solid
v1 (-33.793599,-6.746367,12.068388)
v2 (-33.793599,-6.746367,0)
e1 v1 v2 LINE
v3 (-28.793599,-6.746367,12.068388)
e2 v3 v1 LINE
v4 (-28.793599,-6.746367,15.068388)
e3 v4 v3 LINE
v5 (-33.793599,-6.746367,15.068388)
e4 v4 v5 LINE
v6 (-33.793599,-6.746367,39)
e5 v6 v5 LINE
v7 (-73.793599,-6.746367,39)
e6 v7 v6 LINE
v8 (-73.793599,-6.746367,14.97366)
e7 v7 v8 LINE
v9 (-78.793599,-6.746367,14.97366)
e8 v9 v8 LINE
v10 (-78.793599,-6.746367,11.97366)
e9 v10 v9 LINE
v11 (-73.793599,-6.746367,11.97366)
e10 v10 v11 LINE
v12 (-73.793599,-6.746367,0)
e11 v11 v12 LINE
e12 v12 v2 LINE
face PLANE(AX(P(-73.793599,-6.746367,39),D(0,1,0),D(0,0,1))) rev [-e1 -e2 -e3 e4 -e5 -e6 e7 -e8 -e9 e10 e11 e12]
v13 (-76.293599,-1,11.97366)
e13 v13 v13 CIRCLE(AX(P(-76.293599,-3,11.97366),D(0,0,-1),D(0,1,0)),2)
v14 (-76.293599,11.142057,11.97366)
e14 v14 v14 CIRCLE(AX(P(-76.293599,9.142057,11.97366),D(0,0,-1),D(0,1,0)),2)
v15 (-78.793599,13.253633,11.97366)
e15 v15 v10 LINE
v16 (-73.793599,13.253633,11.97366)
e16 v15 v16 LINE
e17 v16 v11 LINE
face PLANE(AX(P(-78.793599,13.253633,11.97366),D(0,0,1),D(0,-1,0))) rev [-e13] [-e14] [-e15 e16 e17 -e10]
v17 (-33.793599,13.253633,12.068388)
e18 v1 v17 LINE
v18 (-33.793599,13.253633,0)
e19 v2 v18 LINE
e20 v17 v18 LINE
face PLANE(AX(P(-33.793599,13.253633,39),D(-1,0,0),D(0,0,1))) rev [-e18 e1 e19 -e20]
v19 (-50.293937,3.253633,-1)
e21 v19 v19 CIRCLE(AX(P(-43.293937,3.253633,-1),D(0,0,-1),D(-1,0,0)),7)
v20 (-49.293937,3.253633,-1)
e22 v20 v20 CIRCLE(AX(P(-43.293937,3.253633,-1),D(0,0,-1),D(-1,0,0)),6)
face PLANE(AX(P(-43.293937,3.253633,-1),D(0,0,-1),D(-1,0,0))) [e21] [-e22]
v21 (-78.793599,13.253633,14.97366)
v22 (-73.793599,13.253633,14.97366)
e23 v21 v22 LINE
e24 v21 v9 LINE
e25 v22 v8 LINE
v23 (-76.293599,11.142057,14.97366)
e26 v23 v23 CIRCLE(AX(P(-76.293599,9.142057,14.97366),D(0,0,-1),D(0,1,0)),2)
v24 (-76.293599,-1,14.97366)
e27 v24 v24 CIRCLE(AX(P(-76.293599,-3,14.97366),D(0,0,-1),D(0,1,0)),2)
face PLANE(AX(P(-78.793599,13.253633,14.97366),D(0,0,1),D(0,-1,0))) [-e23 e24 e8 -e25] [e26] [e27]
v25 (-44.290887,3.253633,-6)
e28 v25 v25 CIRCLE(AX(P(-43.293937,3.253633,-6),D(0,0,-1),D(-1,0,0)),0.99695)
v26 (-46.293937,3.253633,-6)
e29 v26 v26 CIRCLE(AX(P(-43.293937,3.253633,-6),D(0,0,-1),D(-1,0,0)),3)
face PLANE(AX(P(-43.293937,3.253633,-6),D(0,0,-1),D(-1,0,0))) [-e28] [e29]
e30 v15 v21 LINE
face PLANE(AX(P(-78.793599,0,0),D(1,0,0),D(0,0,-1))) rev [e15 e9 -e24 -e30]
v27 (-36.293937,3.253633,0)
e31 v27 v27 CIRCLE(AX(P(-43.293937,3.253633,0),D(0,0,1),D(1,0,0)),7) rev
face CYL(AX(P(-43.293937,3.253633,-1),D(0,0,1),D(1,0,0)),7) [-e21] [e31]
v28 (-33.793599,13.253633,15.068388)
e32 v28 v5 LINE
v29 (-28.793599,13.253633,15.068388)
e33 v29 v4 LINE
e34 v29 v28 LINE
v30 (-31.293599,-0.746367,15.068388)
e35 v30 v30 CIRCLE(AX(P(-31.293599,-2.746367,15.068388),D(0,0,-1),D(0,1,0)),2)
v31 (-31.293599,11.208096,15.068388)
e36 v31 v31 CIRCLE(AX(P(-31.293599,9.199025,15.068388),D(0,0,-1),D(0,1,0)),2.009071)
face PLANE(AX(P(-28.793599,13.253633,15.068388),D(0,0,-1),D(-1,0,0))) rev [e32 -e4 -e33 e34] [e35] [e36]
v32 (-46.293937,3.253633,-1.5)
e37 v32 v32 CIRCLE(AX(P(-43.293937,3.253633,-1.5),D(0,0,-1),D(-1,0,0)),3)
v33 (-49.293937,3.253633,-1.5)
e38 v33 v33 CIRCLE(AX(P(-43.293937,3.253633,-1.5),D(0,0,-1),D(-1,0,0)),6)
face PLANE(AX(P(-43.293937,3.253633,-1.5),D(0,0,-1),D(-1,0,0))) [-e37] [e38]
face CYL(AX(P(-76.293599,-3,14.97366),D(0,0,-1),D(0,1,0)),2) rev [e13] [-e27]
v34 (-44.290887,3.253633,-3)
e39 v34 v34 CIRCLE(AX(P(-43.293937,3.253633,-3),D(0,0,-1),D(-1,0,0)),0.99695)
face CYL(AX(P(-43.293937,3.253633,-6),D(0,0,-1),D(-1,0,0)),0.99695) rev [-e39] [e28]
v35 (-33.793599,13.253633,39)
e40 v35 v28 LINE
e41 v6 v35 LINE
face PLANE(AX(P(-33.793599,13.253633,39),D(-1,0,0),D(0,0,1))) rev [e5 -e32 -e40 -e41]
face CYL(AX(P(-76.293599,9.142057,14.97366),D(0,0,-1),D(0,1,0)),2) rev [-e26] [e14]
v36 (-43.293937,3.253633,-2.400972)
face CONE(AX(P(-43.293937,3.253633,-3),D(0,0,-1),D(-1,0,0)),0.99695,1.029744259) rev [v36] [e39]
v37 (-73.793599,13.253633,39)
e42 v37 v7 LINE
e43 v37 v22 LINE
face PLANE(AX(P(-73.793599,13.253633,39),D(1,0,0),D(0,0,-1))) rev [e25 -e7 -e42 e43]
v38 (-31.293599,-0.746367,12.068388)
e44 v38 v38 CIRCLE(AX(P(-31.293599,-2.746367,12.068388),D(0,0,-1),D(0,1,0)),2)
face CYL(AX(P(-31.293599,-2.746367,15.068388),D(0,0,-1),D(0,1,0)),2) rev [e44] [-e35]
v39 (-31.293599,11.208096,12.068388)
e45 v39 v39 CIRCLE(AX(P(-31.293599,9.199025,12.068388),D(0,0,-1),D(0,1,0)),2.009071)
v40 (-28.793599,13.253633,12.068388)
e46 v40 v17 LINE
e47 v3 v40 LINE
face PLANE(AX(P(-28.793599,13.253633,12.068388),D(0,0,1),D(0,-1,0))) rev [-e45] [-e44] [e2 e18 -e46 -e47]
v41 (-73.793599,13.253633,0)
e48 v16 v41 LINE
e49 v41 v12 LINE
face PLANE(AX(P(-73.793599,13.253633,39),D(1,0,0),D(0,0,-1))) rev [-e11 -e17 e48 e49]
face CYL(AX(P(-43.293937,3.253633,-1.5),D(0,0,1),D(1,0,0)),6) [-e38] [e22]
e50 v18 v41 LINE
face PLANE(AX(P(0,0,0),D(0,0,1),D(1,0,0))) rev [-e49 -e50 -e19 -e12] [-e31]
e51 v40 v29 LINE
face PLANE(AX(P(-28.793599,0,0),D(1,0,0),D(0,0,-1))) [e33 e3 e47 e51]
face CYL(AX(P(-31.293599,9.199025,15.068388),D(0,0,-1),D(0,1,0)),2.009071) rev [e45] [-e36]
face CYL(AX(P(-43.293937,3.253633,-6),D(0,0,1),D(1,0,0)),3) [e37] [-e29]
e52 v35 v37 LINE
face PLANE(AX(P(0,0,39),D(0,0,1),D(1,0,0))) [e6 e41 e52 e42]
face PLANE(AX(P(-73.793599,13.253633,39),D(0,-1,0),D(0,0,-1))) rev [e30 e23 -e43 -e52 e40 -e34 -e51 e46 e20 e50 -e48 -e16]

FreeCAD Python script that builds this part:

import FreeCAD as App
import Part
import Sketcher

doc = App.newDocument("Part")
body = doc.addObject("PartDesign::Body", "Body")

# Sketch on XY plane
sketch1 = body.newObject("Sketcher::SketchObject", "Sketch")
sketch1.AttachmentSupport = (doc.getObject("XY_Plane"), [""])
sketch1.MapMode = "FlatFace"
sketch1.addGeometry([
    Part.LineSegment(App.Vector(-74, 13, 0), App.Vector(-74, -7, 0)),
    Part.LineSegment(App.Vector(-74, -7, 0), App.Vector(-34, -7, 0)),
    Part.LineSegment(App.Vector(-34, -7, 0), App.Vector(-34, 13, 0)),
    Part.LineSegment(App.Vector(-34, 13, 0), App.Vector(-74, 13, 0)),
], False)
sketch1.addConstraint([
    Sketcher.Constraint("Coincident", 0, 2, 1, 1),
    Sketcher.Constraint("Coincident", 1, 2, 2, 1),
    Sketcher.Constraint("Coincident", 2, 2, 3, 1),
    Sketcher.Constraint("Coincident", 3, 2, 0, 1),
    Sketcher.Constraint("Vertical", 0),
    Sketcher.Constraint("Horizontal", 1),
    Sketcher.Constraint("Vertical", 2),
    Sketcher.Constraint("Horizontal", 3),
    Sketcher.Constraint("DistanceX", 1, 1, 1, 2, 40.0),
    Sketcher.Constraint("DistanceY", 0, 2, 0, 1, 20.0),
    Sketcher.Constraint("DistanceX", 0, 2, -1, 1, 73.793599),
    Sketcher.Constraint("DistanceY", 0, 2, -1, 1, 6.746367),
])
pad1 = body.newObject("PartDesign::Pad", "Pad")
pad1.Profile = sketch1
pad1.Length = 39

# Sketch on YZ plane
sketch2 = body.newObject("Sketcher::SketchObject", "Sketch001")
sketch2.AttachmentSupport = (doc.getObject("YZ_Plane"), [""])
sketch2.MapMode = "FlatFace"
sketch2.AttachmentOffset = App.Placement(App.Vector(0, 0, -33.793599), App.Rotation())
sketch2.addGeometry([
    Part.LineSegment(App.Vector(13.3, 15.1, 0), App.Vector(-6.7, 15.1, 0)),
    Part.LineSegment(App.Vector(-6.7, 15.1, 0), App.Vector(-6.7, 12.1, 0)),
    Part.LineSegment(App.Vector(-6.7, 12.1, 0), App.Vector(13.3, 12.1, 0)),
    Part.LineSegment(App.Vector(13.3, 12.1, 0), App.Vector(13.3, 15.1, 0)),
], False)
sketch2.addConstraint([
    Sketcher.Constraint("Coincident", 0, 2, 1, 1),
    Sketcher.Constraint("Coincident", 1, 2, 2, 1),
    Sketcher.Constraint("Coincident", 2, 2, 3, 1),
    Sketcher.Constraint("Coincident", 3, 2, 0, 1),
    Sketcher.Constraint("Horizontal", 0),
    Sketcher.Constraint("Vertical", 1),
    Sketcher.Constraint("Horizontal", 2),
    Sketcher.Constraint("Vertical", 3),
    Sketcher.Constraint("DistanceX", 0, 2, 0, 1, 20.0),
    Sketcher.Constraint("DistanceY", 1, 2, 1, 1, 3.0),
    Sketcher.Constraint("DistanceX", 0, 2, -1, 1, 6.746367),
    Sketcher.Constraint("DistanceY", -1, 1, 0, 2, 15.068388),
])
pad2 = body.newObject("PartDesign::Pad", "Pad001")
pad2.Profile = sketch2
pad2.Length = 5

# Sketch on YZ plane
sketch3 = body.newObject("Sketcher::SketchObject", "Sketch002")
sketch3.AttachmentSupport = (doc.getObject("YZ_Plane"), [""])
sketch3.MapMode = "FlatFace"
sketch3.AttachmentOffset = App.Placement(App.Vector(0, 0, -73.793599), App.Rotation())
sketch3.addGeometry([
    Part.LineSegment(App.Vector(13.3, 12, 0), App.Vector(-6.7, 12, 0)),
    Part.LineSegment(App.Vector(-6.7, 12, 0), App.Vector(-6.7, 15, 0)),
    Part.LineSegment(App.Vector(-6.7, 15, 0), App.Vector(13.3, 15, 0)),
    Part.LineSegment(App.Vector(13.3, 15, 0), App.Vector(13.3, 12, 0)),
], False)
sketch3.addConstraint([
    Sketcher.Constraint("Coincident", 0, 2, 1, 1),
    Sketcher.Constraint("Coincident", 1, 2, 2, 1),
    Sketcher.Constraint("Coincident", 2, 2, 3, 1),
    Sketcher.Constraint("Coincident", 3, 2, 0, 1),
    Sketcher.Constraint("Horizontal", 0),
    Sketcher.Constraint("Vertical", 1),
    Sketcher.Constraint("Horizontal", 2),
    Sketcher.Constraint("Vertical", 3),
    Sketcher.Constraint("DistanceX", 0, 2, 0, 1, 20.0),
    Sketcher.Constraint("DistanceY", 1, 1, 1, 2, 3.0),
    Sketcher.Constraint("DistanceY", -1, 1, 0, 2, 11.97366),
    Sketcher.Constraint("DistanceX", 0, 2, -1, 1, 6.746367),
])
pad3 = body.newObject("PartDesign::Pad", "Pad002")
pad3.Profile = sketch3
pad3.Length = 5
pad3.Reversed = True

# Sketch on XY plane
sketch4 = body.newObject("Sketcher::SketchObject", "Sketch003")
sketch4.AttachmentSupport = (doc.getObject("XY_Plane"), [""])
sketch4.MapMode = "FlatFace"
sketch4.AttachmentOffset = App.Placement(App.Vector(0, 0, 11.97366), App.Rotation())
sketch4.addGeometry([
    Part.Circle(App.Vector(-76.3, 9.1, 0), App.Vector(0, 0, 1), 2),
    Part.Circle(App.Vector(-76.3, -3, 0), App.Vector(0, 0, 1), 2),
], False)
sketch4.addConstraint([
    Sketcher.Constraint("Equal", 0, 1),
    Sketcher.Constraint("Vertical", 0, 3, 1, 3),
    Sketcher.Constraint("Diameter", 0, 4.0),
    Sketcher.Constraint("DistanceY", 1, 3, -1, 1, 3.0),
    Sketcher.Constraint("DistanceX", 0, 3, -1, 1, 76.293599),
    Sketcher.Constraint("DistanceY", -1, 1, 0, 3, 9.142057),
])
pocket1 = body.newObject("PartDesign::Pocket", "Pocket")
pocket1.Profile = sketch4
pocket1.Length = 3
pocket1.Reversed = True

# Sketch on XY plane
sketch5 = body.newObject("Sketcher::SketchObject", "Sketch004")
sketch5.AttachmentSupport = (doc.getObject("XY_Plane"), [""])
sketch5.MapMode = "FlatFace"
sketch5.AttachmentOffset = App.Placement(App.Vector(0, 0, 12.068388), App.Rotation())
sketch5.addGeometry([
    Part.Circle(App.Vector(-31.3, 9.2, 0), App.Vector(0, 0, 1), 2),
    Part.Circle(App.Vector(-31.3, -2.7, 0), App.Vector(0, 0, 1), 2),
], False)
sketch5.addConstraint([
    Sketcher.Constraint("Vertical", 0, 3, 1, 3),
    Sketcher.Constraint("Diameter", 1, 4.0),
    Sketcher.Constraint("Diameter", 0, 4.018142),
    Sketcher.Constraint("DistanceX", 0, 3, -1, 1, 31.293599),
    Sketcher.Constraint("DistanceY", -1, 1, 0, 3, 9.199025),
    Sketcher.Constraint("DistanceY", 1, 3, -1, 1, 2.746367),
])
pocket2 = body.newObject("PartDesign::Pocket", "Pocket001")
pocket2.Profile = sketch5
pocket2.Length = 3
pocket2.Reversed = True

# Sketch on XY plane
sketch6 = body.newObject("Sketcher::SketchObject", "Sketch005")
sketch6.AttachmentSupport = (doc.getObject("XY_Plane"), [""])
sketch6.MapMode = "FlatFace"
sketch6.addGeometry(Part.Circle(App.Vector(-43.3, 3.3, 0), App.Vector(0, 0, 1), 3), False)
sketch6.addConstraint([
    Sketcher.Constraint("Diameter", 0, 6.0),
    Sketcher.Constraint("DistanceX", 0, 3, -1, 1, 43.293937),
    Sketcher.Constraint("DistanceY", -1, 1, 0, 3, 3.253633),
])
pad4 = body.newObject("PartDesign::Pad", "Pad003")
pad4.Profile = sketch6
pad4.Length = 6
pad4.Reversed = True

# Sketch on XY plane
sketch7 = body.newObject("Sketcher::SketchObject", "Sketch006")
sketch7.AttachmentSupport = (doc.getObject("XY_Plane"), [""])
sketch7.MapMode = "FlatFace"
sketch7.addGeometry(Part.Circle(App.Vector(-43, 3, 0), App.Vector(0, 0, 1), 6), False)
sketch7.addConstraint([
    Sketcher.Constraint("Diameter", 0, 12.0),
    Sketcher.Constraint("DistanceX", 0, 3, -1, 1, 43.293937),
    Sketcher.Constraint("DistanceY", -1, 1, 0, 3, 3.253633),
])
pad5 = body.newObject("PartDesign::Pad", "Pad004")
pad5.Profile = sketch7
pad5.Length = 1.5
pad5.Reversed = True

# Sketch on XY plane
sketch8 = body.newObject("Sketcher::SketchObject", "Sketch007")
sketch8.AttachmentSupport = (doc.getObject("XY_Plane"), [""])
sketch8.MapMode = "FlatFace"
sketch8.addGeometry(Part.Circle(App.Vector(-43, 3, 0), App.Vector(0, 0, 1), 7), False)
sketch8.addConstraint([
    Sketcher.Constraint("Diameter", 0, 14.0),
    Sketcher.Constraint("DistanceX", 0, 3, -1, 1, 43.293937),
    Sketcher.Constraint("DistanceY", -1, 1, 0, 3, 3.253633),
])
pad6 = body.newObject("PartDesign::Pad", "Pad005")
pad6.Profile = sketch8
pad6.Length = 1
pad6.Reversed = True

# Sketch on XY plane
sketch9 = body.newObject("Sketcher::SketchObject", "Sketch008")
sketch9.AttachmentSupport = (doc.getObject("XY_Plane"), [""])
sketch9.MapMode = "FlatFace"
sketch9.AttachmentOffset = App.Placement(App.Vector(0, 0, -6), App.Rotation())
sketch9.addGeometry(Part.Circle(App.Vector(-43.3, 3.3, 0), App.Vector(0, 0, 1), 1), False)
sketch9.addConstraint([
    Sketcher.Constraint("Diameter", 0, 1.9939),
    Sketcher.Constraint("DistanceX", 0, 3, -1, 1, 43.293937),
    Sketcher.Constraint("DistanceY", -1, 1, 0, 3, 3.253633),
])
doc.recompute()
hole = body.newObject("PartDesign::Hole", "Hole")
hole.Profile = sketch9
hole.ThreadType = "None"
hole.Diameter = 1.9939
hole.DepthType = "Dimension"
hole.Depth = 3
hole.DrillPoint = "Angled"
hole.DrillPointAngle = 118
hole.Reversed = True

doc.recompute()
